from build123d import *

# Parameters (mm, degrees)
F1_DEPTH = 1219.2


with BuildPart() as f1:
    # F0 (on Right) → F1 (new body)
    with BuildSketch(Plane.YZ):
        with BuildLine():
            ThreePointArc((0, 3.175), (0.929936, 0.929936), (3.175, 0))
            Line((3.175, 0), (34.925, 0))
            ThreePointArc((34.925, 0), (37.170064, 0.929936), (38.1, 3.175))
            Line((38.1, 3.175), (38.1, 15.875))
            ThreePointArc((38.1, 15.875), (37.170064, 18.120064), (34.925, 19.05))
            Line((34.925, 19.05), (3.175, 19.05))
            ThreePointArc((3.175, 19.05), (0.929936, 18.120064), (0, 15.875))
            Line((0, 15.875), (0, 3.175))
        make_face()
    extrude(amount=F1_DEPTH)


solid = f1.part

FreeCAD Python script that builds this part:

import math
import FreeCAD as App
import Part
import Sketcher
from FreeCAD import Vector
Q = App.Units.Quantity

doc = App.newDocument("Part")
body = doc.addObject("PartDesign::Body", "Body")

# Sketch on YZ plane
sketch1 = body.newObject("Sketcher::SketchObject", "Sketch")
sketch1.AttachmentSupport = (doc.getObject("YZ_Plane"), [""])
sketch1.MapMode = "FlatFace"
sketch1.addGeometry([
    Part.ArcOfCircle(Part.Circle(Vector(3.2, 3.2, 0), Vector(0, 0, 1), 3.2), math.radians(-180), math.radians(-90)),  # 0
    Part.LineSegment(Vector(3.2, 0, 0), Vector(34.9, 0, 0)),  # 1
    Part.ArcOfCircle(Part.Circle(Vector(34.9, 3.2, 0), Vector(0, 0, 1), 3.2), math.radians(-90), math.radians(0)),  # 2
    Part.LineSegment(Vector(38.1, 3.2, 0), Vector(38.1, 15.9, 0)),  # 3
    Part.ArcOfCircle(Part.Circle(Vector(34.9, 15.9, 0), Vector(0, 0, 1), 3.2), math.radians(0), math.radians(90)),  # 4
    Part.LineSegment(Vector(34.9, 19.1, 0), Vector(3.2, 19.1, 0)),  # 5
    Part.ArcOfCircle(Part.Circle(Vector(3.2, 15.9, 0), Vector(0, 0, 1), 3.2), math.radians(90), math.radians(180)),  # 6
    Part.LineSegment(Vector(0, 15.9, 0), Vector(0, 3.2, 0)),  # 7
], False)
sketch1.addConstraint([
    Sketcher.Constraint("Tangent", 0, 2, 1, 1),
    Sketcher.Constraint("Tangent", 1, 2, 2, 1),
    Sketcher.Constraint("Tangent", 2, 2, 3, 1),
    Sketcher.Constraint("Tangent", 3, 2, 4, 1),
    Sketcher.Constraint("Tangent", 4, 2, 5, 1),
    Sketcher.Constraint("Tangent", 5, 2, 6, 1),
    Sketcher.Constraint("Tangent", 6, 2, 7, 1),
    Sketcher.Constraint("Tangent", 7, 2, 0, 1),
    Sketcher.Constraint("Horizontal", 1),
    Sketcher.Constraint("Vertical", 3),
    Sketcher.Constraint("Horizontal", 5),
    Sketcher.Constraint("Vertical", 7),
    Sketcher.Constraint("Equal", 0, 2),
    Sketcher.Constraint("Equal", 2, 4),
    Sketcher.Constraint("Equal", 4, 6),
    Sketcher.Constraint("PointOnObject", 0, 2, -1),
    Sketcher.Constraint("PointOnObject", 6, 2, -2),
    Sketcher.Constraint("DistanceY", 3, 1, 3, 2, Q("0.5 in")),
    Sketcher.Constraint("Radius", 0, Q("0.125 in")),
    Sketcher.Constraint("DistanceX", 1, 1, 1, 2, Q("1.25 in")),
])
pad1 = body.newObject("PartDesign::Pad", "Pad")
pad1.Profile = sketch1
pad1.Length = Q("48 in")

doc.recompute()
